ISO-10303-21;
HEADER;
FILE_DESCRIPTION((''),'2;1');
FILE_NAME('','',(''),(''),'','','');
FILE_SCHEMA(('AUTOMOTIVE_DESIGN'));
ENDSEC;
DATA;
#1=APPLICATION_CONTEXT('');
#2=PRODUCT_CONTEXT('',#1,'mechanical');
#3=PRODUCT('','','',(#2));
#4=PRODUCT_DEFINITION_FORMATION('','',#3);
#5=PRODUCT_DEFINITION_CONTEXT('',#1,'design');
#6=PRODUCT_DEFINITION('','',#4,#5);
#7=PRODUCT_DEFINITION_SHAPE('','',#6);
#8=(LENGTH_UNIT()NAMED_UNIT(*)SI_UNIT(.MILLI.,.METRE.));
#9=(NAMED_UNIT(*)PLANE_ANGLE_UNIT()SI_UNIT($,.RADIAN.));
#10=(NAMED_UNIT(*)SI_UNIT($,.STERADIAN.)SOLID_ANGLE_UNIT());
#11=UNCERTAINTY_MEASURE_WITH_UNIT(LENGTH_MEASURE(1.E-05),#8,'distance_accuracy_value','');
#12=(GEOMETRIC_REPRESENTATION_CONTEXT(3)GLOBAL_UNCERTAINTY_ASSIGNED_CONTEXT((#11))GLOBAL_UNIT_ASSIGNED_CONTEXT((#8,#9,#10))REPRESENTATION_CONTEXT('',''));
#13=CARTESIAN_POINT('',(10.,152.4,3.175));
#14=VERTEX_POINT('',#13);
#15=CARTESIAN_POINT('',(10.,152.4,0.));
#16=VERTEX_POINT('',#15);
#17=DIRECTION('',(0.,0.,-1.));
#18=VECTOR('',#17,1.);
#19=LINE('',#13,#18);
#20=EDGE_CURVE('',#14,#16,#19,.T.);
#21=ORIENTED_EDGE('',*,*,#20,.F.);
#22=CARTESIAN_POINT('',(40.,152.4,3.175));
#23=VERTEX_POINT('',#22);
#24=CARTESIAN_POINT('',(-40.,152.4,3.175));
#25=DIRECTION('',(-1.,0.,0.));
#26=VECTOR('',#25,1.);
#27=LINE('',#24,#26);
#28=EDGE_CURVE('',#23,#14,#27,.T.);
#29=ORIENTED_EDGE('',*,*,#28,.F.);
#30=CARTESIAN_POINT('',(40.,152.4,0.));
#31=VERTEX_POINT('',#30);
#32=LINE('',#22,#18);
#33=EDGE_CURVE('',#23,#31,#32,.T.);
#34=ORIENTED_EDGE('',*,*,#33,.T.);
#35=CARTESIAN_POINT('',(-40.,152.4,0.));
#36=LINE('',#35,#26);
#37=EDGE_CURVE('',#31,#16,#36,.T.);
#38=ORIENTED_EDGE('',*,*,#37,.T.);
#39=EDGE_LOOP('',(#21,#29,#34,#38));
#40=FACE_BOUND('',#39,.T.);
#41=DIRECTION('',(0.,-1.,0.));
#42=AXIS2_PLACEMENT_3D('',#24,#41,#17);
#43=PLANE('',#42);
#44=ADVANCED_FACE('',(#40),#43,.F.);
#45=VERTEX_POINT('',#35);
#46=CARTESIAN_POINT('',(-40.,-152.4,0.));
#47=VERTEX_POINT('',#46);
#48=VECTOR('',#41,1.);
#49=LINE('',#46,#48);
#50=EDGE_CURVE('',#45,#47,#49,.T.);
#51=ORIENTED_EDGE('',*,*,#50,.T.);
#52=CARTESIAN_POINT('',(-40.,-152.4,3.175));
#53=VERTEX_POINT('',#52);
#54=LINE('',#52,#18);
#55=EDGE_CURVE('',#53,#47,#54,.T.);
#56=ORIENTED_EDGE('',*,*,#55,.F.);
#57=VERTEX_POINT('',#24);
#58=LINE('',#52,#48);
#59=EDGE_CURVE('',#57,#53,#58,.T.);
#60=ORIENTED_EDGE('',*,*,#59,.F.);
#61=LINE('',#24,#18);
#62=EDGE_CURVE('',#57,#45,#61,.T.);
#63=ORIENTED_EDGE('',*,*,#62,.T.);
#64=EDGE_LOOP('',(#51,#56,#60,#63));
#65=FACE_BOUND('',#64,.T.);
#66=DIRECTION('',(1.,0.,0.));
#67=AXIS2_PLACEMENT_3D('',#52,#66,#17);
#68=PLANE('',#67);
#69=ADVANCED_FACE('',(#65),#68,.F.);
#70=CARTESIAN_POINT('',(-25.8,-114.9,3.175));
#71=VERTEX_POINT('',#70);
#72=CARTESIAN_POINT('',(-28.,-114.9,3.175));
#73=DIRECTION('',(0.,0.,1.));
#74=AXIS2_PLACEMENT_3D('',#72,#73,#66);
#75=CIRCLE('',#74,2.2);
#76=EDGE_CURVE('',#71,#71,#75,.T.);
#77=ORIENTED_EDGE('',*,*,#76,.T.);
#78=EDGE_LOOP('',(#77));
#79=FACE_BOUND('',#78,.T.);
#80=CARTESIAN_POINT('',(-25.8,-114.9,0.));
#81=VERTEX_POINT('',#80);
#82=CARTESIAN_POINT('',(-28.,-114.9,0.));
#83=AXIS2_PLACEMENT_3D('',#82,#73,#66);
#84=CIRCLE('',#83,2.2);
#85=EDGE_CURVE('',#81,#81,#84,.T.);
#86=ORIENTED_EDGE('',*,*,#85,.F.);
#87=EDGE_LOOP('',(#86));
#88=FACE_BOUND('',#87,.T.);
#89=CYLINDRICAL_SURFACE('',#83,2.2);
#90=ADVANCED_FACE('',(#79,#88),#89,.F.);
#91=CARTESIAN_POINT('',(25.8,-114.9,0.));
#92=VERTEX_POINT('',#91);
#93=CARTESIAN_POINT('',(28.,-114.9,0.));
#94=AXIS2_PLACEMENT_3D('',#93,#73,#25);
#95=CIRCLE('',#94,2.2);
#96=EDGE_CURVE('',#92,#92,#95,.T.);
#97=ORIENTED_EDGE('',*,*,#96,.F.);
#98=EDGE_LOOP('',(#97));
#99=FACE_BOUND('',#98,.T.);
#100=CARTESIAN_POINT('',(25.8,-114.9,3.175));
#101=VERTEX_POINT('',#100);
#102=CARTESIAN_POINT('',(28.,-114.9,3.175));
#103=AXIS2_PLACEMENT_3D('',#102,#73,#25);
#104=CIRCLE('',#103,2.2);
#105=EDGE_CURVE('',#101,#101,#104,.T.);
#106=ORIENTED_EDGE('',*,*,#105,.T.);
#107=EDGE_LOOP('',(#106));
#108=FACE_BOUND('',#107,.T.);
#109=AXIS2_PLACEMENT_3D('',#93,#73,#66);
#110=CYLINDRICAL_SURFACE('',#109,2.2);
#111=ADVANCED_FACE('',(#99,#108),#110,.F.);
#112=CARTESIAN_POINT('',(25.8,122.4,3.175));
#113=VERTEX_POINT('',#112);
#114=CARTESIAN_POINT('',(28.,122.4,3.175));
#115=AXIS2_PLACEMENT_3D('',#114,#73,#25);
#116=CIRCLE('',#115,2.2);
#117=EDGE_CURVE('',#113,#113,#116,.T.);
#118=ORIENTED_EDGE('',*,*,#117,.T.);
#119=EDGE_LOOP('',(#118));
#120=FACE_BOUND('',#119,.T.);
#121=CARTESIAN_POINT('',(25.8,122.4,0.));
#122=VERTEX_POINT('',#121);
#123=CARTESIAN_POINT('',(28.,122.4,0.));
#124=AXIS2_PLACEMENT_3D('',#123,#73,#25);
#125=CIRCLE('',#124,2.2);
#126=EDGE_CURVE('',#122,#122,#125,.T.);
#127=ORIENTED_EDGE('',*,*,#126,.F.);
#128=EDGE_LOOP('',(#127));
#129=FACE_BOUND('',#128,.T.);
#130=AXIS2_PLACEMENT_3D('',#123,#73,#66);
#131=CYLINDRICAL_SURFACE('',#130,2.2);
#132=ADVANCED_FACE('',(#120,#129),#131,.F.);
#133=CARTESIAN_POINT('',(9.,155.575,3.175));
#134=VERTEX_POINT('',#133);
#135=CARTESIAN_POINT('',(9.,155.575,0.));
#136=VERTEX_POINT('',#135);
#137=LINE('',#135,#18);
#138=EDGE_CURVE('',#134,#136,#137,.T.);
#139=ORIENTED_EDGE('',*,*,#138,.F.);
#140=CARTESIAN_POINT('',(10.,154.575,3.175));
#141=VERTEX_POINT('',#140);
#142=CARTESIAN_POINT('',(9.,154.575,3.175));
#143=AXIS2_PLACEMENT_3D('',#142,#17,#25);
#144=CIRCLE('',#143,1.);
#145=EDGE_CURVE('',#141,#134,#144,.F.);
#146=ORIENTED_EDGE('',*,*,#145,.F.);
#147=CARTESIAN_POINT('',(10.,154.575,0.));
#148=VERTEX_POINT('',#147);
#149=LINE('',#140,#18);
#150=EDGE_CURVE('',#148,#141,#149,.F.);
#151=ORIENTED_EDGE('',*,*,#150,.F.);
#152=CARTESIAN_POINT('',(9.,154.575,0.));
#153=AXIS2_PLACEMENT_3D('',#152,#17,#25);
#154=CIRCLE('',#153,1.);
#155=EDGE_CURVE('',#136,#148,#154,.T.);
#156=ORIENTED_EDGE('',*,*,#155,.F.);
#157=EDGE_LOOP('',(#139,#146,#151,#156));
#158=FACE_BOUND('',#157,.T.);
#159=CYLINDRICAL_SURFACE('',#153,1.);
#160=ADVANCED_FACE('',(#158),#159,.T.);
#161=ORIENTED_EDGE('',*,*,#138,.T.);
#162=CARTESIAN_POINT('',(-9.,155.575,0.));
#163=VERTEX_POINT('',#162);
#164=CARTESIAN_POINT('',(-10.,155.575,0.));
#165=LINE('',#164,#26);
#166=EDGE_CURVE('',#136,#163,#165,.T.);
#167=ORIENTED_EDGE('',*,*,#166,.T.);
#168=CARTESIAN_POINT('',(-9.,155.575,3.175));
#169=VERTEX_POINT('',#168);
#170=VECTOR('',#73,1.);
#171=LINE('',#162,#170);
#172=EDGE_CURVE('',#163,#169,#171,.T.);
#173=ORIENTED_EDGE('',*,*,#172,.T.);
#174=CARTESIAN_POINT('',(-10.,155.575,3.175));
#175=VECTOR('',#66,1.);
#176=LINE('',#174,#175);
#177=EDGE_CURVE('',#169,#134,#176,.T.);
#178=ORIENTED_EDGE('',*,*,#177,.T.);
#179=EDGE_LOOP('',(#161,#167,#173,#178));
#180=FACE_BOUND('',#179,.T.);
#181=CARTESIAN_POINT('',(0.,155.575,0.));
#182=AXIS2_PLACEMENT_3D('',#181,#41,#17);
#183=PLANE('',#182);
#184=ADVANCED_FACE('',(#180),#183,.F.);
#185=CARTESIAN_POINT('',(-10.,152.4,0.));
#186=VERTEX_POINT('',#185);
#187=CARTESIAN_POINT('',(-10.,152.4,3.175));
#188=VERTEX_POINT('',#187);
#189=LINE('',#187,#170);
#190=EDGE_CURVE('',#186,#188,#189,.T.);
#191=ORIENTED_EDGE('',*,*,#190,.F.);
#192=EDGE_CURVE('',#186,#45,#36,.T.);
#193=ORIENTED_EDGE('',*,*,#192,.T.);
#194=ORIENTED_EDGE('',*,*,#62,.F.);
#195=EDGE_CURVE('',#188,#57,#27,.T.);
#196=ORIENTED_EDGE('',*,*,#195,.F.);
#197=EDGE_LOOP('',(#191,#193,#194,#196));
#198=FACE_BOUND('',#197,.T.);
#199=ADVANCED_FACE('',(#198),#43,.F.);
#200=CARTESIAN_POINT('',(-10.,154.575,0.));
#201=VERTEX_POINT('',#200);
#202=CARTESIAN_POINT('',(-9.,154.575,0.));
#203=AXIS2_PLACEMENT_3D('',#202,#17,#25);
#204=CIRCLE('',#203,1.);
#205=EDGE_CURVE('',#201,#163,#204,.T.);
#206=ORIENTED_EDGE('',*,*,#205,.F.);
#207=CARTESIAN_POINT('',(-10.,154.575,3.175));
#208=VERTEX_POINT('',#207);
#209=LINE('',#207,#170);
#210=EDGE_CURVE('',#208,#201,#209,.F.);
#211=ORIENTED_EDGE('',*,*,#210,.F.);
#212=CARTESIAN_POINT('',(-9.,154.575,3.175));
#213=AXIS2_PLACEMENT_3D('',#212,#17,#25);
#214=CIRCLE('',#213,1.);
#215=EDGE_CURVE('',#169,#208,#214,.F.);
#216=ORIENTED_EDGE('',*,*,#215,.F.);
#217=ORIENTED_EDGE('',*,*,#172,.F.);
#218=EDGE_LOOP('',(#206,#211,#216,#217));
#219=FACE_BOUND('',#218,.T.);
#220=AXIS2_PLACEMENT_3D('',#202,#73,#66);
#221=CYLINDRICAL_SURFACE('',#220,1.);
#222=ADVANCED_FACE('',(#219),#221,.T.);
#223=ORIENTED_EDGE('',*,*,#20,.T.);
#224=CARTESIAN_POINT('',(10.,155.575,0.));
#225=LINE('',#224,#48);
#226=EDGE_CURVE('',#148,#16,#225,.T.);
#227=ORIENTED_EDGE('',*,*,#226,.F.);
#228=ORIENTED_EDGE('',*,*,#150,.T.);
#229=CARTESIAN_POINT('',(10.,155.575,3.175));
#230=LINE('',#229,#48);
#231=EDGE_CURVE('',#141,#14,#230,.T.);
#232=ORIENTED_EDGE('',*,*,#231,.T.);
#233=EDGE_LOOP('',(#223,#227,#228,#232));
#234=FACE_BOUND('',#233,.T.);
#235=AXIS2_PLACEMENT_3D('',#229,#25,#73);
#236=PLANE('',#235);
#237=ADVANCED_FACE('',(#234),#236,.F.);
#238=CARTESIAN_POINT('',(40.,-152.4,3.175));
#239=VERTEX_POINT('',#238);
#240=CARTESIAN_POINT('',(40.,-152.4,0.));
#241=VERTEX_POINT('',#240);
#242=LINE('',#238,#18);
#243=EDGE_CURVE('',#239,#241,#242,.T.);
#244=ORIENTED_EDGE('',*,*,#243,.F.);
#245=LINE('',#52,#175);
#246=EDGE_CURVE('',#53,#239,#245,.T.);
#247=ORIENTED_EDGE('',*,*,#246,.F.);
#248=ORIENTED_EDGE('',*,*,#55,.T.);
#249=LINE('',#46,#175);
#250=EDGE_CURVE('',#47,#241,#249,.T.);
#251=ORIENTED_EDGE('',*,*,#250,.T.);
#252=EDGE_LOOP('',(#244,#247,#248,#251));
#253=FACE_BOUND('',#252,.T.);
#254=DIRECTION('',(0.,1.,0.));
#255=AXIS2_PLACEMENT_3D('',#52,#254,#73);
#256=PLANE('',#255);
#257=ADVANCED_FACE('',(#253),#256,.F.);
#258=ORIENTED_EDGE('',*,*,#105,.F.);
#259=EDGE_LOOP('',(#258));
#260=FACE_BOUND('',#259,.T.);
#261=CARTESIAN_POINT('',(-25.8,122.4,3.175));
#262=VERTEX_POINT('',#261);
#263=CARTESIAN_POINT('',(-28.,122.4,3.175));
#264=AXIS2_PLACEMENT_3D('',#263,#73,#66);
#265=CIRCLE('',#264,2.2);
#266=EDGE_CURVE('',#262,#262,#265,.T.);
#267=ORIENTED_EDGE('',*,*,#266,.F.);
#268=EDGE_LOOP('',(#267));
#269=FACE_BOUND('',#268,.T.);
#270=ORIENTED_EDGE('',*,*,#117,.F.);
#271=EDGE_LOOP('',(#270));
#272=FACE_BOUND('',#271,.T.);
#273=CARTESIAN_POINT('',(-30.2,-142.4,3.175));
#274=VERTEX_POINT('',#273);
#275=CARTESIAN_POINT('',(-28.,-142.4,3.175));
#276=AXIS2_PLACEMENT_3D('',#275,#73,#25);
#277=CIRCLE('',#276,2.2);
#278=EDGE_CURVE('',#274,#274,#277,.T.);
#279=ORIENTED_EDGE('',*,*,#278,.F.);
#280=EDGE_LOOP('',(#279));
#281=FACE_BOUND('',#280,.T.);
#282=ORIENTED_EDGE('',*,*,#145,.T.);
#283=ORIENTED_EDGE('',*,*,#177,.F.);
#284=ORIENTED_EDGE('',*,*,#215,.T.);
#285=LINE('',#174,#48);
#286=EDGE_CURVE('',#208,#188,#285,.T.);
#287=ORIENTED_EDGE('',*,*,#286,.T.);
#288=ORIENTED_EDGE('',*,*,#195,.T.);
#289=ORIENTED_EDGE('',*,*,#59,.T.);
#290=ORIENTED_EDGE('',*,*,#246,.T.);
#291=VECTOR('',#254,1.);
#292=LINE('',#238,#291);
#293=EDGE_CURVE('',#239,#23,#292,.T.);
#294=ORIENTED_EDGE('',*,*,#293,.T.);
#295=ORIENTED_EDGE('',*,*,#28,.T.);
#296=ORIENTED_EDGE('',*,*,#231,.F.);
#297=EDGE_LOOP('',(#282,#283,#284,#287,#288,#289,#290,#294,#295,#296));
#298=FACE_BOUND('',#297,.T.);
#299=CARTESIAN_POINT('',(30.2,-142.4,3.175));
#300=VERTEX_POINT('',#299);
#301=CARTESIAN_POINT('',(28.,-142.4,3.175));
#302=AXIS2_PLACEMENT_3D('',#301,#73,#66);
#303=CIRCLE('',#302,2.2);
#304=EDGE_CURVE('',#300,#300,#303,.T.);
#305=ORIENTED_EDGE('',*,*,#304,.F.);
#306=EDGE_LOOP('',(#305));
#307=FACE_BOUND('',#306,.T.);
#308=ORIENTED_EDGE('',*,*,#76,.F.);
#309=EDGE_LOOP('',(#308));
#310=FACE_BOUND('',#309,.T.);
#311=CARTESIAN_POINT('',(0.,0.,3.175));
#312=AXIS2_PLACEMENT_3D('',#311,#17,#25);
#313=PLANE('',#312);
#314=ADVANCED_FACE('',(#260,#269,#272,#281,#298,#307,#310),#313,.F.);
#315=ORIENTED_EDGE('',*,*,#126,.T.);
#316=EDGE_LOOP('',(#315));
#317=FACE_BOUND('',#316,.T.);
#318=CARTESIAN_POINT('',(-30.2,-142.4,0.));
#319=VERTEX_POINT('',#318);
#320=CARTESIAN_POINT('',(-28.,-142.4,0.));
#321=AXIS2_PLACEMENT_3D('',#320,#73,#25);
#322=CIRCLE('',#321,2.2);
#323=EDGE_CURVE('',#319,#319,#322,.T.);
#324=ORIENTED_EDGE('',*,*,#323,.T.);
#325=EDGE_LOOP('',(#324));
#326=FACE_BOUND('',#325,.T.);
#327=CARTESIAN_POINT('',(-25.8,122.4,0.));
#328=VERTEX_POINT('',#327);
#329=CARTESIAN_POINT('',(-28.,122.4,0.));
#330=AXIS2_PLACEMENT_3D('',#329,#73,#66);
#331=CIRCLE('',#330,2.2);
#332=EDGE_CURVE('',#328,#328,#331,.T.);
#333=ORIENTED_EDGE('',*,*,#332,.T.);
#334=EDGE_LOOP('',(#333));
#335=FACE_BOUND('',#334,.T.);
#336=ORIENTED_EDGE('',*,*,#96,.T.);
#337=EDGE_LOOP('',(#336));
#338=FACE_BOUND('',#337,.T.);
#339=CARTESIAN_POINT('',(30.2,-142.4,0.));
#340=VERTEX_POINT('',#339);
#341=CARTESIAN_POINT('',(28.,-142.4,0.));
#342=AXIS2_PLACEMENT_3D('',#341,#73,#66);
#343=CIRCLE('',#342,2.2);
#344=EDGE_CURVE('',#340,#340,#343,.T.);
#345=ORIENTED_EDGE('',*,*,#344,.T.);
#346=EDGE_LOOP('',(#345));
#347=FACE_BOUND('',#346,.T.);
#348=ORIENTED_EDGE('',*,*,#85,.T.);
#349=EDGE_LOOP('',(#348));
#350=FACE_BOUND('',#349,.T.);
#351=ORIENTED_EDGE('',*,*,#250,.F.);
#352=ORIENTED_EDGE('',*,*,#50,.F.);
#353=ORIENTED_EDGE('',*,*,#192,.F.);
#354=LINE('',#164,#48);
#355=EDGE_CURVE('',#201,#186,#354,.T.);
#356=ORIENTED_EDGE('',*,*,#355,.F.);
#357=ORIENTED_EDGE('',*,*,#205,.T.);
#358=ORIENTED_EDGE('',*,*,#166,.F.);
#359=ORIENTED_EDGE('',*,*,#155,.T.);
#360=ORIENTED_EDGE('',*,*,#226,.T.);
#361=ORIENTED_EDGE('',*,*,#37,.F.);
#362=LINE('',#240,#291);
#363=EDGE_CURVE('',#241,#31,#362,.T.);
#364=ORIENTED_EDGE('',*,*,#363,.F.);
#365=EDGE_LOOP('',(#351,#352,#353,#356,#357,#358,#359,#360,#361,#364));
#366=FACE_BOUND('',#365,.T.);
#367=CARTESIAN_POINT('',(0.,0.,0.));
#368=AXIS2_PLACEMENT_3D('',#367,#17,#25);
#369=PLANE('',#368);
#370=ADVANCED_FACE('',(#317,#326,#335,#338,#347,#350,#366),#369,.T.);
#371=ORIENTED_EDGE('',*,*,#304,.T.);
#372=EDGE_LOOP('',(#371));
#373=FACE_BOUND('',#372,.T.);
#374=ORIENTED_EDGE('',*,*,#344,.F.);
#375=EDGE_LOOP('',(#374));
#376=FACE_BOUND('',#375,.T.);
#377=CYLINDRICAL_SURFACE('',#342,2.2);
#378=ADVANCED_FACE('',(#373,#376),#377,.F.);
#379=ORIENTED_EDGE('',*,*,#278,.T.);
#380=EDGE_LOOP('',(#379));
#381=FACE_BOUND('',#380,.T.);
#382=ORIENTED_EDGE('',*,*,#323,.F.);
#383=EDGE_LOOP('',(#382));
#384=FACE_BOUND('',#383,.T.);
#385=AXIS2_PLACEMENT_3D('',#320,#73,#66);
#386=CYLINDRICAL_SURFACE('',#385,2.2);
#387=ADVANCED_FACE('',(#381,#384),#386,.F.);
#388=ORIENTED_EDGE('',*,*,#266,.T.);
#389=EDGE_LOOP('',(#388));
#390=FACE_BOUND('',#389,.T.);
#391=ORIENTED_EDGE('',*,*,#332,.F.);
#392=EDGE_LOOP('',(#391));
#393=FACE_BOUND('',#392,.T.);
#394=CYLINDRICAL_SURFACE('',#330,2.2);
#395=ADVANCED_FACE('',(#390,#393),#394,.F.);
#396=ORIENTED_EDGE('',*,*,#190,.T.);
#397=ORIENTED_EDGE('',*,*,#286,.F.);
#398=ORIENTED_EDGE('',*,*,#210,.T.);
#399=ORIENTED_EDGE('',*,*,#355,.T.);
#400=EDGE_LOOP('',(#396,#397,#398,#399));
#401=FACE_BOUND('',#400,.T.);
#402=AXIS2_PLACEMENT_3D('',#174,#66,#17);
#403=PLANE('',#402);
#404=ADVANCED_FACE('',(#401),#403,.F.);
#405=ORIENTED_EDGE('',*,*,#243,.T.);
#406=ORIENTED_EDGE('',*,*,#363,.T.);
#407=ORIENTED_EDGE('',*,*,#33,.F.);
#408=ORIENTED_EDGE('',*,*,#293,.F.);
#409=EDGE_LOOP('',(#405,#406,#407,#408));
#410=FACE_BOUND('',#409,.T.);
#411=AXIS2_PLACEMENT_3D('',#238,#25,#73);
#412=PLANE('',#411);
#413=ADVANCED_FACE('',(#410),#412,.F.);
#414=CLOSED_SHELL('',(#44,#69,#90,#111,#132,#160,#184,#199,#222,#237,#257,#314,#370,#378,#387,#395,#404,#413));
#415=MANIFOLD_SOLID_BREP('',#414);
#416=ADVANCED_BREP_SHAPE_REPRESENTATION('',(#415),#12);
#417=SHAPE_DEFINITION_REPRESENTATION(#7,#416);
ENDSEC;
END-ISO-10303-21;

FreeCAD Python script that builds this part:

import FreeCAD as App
import Part
import Sketcher
from FreeCAD import Vector
Q = App.Units.Quantity


def edges_at(feature, points):
    """Names of the edges that pass closest to the given points."""
    edges = feature.Shape.Edges
    near = lambda p: min(range(len(edges)), key=lambda i: edges[i].distToShape(Part.Vertex(*p))[0])
    return sorted({f"Edge{near(p) + 1}" for p in points})

doc = App.newDocument("Part")
body = doc.addObject("PartDesign::Body", "Body")

# Sketch on XY plane
sketch1 = body.newObject("Sketcher::SketchObject", "Sketch")
sketch1.AttachmentSupport = (doc.getObject("XY_Plane"), [""])
sketch1.MapMode = "FlatFace"
sketch1.addGeometry([
    Part.LineSegment(Vector(-40, 152, 0), Vector(-40, -152, 0)),
    Part.LineSegment(Vector(-40, -152, 0), Vector(40, -152, 0)),
    Part.LineSegment(Vector(40, -152, 0), Vector(40, 152, 0)),
    Part.LineSegment(Vector(40, 152, 0), Vector(-40, 152, 0)),
], False)
sketch1.addConstraint([
    Sketcher.Constraint("Coincident", 0, 2, 1, 1),
    Sketcher.Constraint("Coincident", 1, 2, 2, 1),
    Sketcher.Constraint("Coincident", 2, 2, 3, 1),
    Sketcher.Constraint("Coincident", 3, 2, 0, 1),
    Sketcher.Constraint("Vertical", 0),
    Sketcher.Constraint("Horizontal", 1),
    Sketcher.Constraint("Vertical", 2),
    Sketcher.Constraint("Horizontal", 3),
    Sketcher.Constraint("Symmetric", 0, 2, 2, 2, -1, 1),
    Sketcher.Constraint("DistanceX", 1, 1, 1, 2, Q("80 mm")),
    Sketcher.Constraint("DistanceY", 0, 2, 0, 1, Q("304.8 mm")),
])
pad1 = body.newObject("PartDesign::Pad", "Pad")
pad1.Profile = sketch1
pad1.Length = 3.175

# Sketch on XY plane
sketch2 = body.newObject("Sketcher::SketchObject", "Sketch001")
sketch2.AttachmentSupport = (doc.getObject("XY_Plane"), [""])
sketch2.MapMode = "FlatFace"
sketch2.AttachmentOffset = App.Placement(Vector(0, 0, 3.175), App.Rotation())
sketch2.addGeometry([
    Part.Circle(Vector(-28, -114.9, 0), Vector(0, 0, 1), 2.2),  # 0
    Part.Circle(Vector(28, -114.9, 0), Vector(0, 0, 1), 2.2),  # 1
    Part.Circle(Vector(28, -142.4, 0), Vector(0, 0, 1), 2.2),  # 2
    Part.Circle(Vector(-28, -142.4, 0), Vector(0, 0, 1), 2.2),  # 3
    Part.Circle(Vector(-28, 122.4, 0), Vector(0, 0, 1), 2.2),  # 4
    Part.Circle(Vector(28, 122.4, 0), Vector(0, 0, 1), 2.2),  # 5
], False)
sketch2.addConstraint([
    Sketcher.Constraint("Equal", 0, 1),
    Sketcher.Constraint("Equal", 1, 2),
    Sketcher.Constraint("Equal", 2, 3),
    Sketcher.Constraint("Equal", 3, 4),
    Sketcher.Constraint("Equal", 4, 5),
    Sketcher.Constraint("Symmetric", 0, 3, 1, 3, -2),
    Sketcher.Constraint("Symmetric", 2, 3, 3, 3, -2),
    Sketcher.Constraint("Symmetric", 4, 3, 5, 3, -2),
    Sketcher.Constraint("Vertical", 1, 3, 2, 3),
    Sketcher.Constraint("Vertical", 3, 3, 4, 3),
    Sketcher.Constraint("Diameter", 0, Q("4.4 mm")),
    Sketcher.Constraint("DistanceX", 0, 3, -1, 1, Q("28 mm")),
    Sketcher.Constraint("DistanceY", 0, 3, -1, 1, Q("114.9 mm")),
    Sketcher.Constraint("DistanceY", 2, 3, -1, 1, Q("142.4 mm")),
    Sketcher.Constraint("DistanceY", -1, 1, 4, 3, Q("122.4 mm")),
])
pocket1 = body.newObject("PartDesign::Pocket", "Pocket")
pocket1.Profile = sketch2
pocket1.Type = "ThroughAll"

# Sketch on XZ plane
sketch3 = body.newObject("Sketcher::SketchObject", "Sketch002")
sketch3.AttachmentSupport = (doc.getObject("XZ_Plane"), [""])
sketch3.MapMode = "FlatFace"
sketch3.AttachmentOffset = App.Placement(Vector(0, 0, -152.4), App.Rotation())
sketch3.addGeometry([
    Part.LineSegment(Vector(-10, 0, 0), Vector(-10, 3.2, 0)),
    Part.LineSegment(Vector(-10, 3.2, 0), Vector(10, 3.2, 0)),
    Part.LineSegment(Vector(10, 3.2, 0), Vector(10, 0, 0)),
    Part.LineSegment(Vector(10, 0, 0), Vector(-10, 0, 0)),
], False)
sketch3.addConstraint([
    Sketcher.Constraint("Coincident", 0, 2, 1, 1),
    Sketcher.Constraint("Coincident", 1, 2, 2, 1),
    Sketcher.Constraint("Coincident", 2, 2, 3, 1),
    Sketcher.Constraint("Coincident", 3, 2, 0, 1),
    Sketcher.Constraint("Vertical", 0),
    Sketcher.Constraint("Horizontal", 1),
    Sketcher.Constraint("Vertical", 2),
    Sketcher.Constraint("Horizontal", 3),
    Sketcher.Constraint("Symmetric", 2, 2, 3, 2, -1, 1),
    Sketcher.Constraint("DistanceX", 1, 1, 1, 2, Q("20 mm")),
    Sketcher.Constraint("DistanceY", 0, 1, 0, 2, Q("3.175 mm")),
])
pad2 = body.newObject("PartDesign::Pad", "Pad001")
pad2.Profile = sketch3
pad2.Length = 3.175
pad2.Reversed = True
doc.recompute()

fillet = body.newObject("PartDesign::Fillet", "Fillet")
fillet.Base = (pad2, edges_at(pad2, [(10, 155.575, 1.587), (-10, 155.575, 1.587)]))
fillet.Radius = 1

doc.recompute()
